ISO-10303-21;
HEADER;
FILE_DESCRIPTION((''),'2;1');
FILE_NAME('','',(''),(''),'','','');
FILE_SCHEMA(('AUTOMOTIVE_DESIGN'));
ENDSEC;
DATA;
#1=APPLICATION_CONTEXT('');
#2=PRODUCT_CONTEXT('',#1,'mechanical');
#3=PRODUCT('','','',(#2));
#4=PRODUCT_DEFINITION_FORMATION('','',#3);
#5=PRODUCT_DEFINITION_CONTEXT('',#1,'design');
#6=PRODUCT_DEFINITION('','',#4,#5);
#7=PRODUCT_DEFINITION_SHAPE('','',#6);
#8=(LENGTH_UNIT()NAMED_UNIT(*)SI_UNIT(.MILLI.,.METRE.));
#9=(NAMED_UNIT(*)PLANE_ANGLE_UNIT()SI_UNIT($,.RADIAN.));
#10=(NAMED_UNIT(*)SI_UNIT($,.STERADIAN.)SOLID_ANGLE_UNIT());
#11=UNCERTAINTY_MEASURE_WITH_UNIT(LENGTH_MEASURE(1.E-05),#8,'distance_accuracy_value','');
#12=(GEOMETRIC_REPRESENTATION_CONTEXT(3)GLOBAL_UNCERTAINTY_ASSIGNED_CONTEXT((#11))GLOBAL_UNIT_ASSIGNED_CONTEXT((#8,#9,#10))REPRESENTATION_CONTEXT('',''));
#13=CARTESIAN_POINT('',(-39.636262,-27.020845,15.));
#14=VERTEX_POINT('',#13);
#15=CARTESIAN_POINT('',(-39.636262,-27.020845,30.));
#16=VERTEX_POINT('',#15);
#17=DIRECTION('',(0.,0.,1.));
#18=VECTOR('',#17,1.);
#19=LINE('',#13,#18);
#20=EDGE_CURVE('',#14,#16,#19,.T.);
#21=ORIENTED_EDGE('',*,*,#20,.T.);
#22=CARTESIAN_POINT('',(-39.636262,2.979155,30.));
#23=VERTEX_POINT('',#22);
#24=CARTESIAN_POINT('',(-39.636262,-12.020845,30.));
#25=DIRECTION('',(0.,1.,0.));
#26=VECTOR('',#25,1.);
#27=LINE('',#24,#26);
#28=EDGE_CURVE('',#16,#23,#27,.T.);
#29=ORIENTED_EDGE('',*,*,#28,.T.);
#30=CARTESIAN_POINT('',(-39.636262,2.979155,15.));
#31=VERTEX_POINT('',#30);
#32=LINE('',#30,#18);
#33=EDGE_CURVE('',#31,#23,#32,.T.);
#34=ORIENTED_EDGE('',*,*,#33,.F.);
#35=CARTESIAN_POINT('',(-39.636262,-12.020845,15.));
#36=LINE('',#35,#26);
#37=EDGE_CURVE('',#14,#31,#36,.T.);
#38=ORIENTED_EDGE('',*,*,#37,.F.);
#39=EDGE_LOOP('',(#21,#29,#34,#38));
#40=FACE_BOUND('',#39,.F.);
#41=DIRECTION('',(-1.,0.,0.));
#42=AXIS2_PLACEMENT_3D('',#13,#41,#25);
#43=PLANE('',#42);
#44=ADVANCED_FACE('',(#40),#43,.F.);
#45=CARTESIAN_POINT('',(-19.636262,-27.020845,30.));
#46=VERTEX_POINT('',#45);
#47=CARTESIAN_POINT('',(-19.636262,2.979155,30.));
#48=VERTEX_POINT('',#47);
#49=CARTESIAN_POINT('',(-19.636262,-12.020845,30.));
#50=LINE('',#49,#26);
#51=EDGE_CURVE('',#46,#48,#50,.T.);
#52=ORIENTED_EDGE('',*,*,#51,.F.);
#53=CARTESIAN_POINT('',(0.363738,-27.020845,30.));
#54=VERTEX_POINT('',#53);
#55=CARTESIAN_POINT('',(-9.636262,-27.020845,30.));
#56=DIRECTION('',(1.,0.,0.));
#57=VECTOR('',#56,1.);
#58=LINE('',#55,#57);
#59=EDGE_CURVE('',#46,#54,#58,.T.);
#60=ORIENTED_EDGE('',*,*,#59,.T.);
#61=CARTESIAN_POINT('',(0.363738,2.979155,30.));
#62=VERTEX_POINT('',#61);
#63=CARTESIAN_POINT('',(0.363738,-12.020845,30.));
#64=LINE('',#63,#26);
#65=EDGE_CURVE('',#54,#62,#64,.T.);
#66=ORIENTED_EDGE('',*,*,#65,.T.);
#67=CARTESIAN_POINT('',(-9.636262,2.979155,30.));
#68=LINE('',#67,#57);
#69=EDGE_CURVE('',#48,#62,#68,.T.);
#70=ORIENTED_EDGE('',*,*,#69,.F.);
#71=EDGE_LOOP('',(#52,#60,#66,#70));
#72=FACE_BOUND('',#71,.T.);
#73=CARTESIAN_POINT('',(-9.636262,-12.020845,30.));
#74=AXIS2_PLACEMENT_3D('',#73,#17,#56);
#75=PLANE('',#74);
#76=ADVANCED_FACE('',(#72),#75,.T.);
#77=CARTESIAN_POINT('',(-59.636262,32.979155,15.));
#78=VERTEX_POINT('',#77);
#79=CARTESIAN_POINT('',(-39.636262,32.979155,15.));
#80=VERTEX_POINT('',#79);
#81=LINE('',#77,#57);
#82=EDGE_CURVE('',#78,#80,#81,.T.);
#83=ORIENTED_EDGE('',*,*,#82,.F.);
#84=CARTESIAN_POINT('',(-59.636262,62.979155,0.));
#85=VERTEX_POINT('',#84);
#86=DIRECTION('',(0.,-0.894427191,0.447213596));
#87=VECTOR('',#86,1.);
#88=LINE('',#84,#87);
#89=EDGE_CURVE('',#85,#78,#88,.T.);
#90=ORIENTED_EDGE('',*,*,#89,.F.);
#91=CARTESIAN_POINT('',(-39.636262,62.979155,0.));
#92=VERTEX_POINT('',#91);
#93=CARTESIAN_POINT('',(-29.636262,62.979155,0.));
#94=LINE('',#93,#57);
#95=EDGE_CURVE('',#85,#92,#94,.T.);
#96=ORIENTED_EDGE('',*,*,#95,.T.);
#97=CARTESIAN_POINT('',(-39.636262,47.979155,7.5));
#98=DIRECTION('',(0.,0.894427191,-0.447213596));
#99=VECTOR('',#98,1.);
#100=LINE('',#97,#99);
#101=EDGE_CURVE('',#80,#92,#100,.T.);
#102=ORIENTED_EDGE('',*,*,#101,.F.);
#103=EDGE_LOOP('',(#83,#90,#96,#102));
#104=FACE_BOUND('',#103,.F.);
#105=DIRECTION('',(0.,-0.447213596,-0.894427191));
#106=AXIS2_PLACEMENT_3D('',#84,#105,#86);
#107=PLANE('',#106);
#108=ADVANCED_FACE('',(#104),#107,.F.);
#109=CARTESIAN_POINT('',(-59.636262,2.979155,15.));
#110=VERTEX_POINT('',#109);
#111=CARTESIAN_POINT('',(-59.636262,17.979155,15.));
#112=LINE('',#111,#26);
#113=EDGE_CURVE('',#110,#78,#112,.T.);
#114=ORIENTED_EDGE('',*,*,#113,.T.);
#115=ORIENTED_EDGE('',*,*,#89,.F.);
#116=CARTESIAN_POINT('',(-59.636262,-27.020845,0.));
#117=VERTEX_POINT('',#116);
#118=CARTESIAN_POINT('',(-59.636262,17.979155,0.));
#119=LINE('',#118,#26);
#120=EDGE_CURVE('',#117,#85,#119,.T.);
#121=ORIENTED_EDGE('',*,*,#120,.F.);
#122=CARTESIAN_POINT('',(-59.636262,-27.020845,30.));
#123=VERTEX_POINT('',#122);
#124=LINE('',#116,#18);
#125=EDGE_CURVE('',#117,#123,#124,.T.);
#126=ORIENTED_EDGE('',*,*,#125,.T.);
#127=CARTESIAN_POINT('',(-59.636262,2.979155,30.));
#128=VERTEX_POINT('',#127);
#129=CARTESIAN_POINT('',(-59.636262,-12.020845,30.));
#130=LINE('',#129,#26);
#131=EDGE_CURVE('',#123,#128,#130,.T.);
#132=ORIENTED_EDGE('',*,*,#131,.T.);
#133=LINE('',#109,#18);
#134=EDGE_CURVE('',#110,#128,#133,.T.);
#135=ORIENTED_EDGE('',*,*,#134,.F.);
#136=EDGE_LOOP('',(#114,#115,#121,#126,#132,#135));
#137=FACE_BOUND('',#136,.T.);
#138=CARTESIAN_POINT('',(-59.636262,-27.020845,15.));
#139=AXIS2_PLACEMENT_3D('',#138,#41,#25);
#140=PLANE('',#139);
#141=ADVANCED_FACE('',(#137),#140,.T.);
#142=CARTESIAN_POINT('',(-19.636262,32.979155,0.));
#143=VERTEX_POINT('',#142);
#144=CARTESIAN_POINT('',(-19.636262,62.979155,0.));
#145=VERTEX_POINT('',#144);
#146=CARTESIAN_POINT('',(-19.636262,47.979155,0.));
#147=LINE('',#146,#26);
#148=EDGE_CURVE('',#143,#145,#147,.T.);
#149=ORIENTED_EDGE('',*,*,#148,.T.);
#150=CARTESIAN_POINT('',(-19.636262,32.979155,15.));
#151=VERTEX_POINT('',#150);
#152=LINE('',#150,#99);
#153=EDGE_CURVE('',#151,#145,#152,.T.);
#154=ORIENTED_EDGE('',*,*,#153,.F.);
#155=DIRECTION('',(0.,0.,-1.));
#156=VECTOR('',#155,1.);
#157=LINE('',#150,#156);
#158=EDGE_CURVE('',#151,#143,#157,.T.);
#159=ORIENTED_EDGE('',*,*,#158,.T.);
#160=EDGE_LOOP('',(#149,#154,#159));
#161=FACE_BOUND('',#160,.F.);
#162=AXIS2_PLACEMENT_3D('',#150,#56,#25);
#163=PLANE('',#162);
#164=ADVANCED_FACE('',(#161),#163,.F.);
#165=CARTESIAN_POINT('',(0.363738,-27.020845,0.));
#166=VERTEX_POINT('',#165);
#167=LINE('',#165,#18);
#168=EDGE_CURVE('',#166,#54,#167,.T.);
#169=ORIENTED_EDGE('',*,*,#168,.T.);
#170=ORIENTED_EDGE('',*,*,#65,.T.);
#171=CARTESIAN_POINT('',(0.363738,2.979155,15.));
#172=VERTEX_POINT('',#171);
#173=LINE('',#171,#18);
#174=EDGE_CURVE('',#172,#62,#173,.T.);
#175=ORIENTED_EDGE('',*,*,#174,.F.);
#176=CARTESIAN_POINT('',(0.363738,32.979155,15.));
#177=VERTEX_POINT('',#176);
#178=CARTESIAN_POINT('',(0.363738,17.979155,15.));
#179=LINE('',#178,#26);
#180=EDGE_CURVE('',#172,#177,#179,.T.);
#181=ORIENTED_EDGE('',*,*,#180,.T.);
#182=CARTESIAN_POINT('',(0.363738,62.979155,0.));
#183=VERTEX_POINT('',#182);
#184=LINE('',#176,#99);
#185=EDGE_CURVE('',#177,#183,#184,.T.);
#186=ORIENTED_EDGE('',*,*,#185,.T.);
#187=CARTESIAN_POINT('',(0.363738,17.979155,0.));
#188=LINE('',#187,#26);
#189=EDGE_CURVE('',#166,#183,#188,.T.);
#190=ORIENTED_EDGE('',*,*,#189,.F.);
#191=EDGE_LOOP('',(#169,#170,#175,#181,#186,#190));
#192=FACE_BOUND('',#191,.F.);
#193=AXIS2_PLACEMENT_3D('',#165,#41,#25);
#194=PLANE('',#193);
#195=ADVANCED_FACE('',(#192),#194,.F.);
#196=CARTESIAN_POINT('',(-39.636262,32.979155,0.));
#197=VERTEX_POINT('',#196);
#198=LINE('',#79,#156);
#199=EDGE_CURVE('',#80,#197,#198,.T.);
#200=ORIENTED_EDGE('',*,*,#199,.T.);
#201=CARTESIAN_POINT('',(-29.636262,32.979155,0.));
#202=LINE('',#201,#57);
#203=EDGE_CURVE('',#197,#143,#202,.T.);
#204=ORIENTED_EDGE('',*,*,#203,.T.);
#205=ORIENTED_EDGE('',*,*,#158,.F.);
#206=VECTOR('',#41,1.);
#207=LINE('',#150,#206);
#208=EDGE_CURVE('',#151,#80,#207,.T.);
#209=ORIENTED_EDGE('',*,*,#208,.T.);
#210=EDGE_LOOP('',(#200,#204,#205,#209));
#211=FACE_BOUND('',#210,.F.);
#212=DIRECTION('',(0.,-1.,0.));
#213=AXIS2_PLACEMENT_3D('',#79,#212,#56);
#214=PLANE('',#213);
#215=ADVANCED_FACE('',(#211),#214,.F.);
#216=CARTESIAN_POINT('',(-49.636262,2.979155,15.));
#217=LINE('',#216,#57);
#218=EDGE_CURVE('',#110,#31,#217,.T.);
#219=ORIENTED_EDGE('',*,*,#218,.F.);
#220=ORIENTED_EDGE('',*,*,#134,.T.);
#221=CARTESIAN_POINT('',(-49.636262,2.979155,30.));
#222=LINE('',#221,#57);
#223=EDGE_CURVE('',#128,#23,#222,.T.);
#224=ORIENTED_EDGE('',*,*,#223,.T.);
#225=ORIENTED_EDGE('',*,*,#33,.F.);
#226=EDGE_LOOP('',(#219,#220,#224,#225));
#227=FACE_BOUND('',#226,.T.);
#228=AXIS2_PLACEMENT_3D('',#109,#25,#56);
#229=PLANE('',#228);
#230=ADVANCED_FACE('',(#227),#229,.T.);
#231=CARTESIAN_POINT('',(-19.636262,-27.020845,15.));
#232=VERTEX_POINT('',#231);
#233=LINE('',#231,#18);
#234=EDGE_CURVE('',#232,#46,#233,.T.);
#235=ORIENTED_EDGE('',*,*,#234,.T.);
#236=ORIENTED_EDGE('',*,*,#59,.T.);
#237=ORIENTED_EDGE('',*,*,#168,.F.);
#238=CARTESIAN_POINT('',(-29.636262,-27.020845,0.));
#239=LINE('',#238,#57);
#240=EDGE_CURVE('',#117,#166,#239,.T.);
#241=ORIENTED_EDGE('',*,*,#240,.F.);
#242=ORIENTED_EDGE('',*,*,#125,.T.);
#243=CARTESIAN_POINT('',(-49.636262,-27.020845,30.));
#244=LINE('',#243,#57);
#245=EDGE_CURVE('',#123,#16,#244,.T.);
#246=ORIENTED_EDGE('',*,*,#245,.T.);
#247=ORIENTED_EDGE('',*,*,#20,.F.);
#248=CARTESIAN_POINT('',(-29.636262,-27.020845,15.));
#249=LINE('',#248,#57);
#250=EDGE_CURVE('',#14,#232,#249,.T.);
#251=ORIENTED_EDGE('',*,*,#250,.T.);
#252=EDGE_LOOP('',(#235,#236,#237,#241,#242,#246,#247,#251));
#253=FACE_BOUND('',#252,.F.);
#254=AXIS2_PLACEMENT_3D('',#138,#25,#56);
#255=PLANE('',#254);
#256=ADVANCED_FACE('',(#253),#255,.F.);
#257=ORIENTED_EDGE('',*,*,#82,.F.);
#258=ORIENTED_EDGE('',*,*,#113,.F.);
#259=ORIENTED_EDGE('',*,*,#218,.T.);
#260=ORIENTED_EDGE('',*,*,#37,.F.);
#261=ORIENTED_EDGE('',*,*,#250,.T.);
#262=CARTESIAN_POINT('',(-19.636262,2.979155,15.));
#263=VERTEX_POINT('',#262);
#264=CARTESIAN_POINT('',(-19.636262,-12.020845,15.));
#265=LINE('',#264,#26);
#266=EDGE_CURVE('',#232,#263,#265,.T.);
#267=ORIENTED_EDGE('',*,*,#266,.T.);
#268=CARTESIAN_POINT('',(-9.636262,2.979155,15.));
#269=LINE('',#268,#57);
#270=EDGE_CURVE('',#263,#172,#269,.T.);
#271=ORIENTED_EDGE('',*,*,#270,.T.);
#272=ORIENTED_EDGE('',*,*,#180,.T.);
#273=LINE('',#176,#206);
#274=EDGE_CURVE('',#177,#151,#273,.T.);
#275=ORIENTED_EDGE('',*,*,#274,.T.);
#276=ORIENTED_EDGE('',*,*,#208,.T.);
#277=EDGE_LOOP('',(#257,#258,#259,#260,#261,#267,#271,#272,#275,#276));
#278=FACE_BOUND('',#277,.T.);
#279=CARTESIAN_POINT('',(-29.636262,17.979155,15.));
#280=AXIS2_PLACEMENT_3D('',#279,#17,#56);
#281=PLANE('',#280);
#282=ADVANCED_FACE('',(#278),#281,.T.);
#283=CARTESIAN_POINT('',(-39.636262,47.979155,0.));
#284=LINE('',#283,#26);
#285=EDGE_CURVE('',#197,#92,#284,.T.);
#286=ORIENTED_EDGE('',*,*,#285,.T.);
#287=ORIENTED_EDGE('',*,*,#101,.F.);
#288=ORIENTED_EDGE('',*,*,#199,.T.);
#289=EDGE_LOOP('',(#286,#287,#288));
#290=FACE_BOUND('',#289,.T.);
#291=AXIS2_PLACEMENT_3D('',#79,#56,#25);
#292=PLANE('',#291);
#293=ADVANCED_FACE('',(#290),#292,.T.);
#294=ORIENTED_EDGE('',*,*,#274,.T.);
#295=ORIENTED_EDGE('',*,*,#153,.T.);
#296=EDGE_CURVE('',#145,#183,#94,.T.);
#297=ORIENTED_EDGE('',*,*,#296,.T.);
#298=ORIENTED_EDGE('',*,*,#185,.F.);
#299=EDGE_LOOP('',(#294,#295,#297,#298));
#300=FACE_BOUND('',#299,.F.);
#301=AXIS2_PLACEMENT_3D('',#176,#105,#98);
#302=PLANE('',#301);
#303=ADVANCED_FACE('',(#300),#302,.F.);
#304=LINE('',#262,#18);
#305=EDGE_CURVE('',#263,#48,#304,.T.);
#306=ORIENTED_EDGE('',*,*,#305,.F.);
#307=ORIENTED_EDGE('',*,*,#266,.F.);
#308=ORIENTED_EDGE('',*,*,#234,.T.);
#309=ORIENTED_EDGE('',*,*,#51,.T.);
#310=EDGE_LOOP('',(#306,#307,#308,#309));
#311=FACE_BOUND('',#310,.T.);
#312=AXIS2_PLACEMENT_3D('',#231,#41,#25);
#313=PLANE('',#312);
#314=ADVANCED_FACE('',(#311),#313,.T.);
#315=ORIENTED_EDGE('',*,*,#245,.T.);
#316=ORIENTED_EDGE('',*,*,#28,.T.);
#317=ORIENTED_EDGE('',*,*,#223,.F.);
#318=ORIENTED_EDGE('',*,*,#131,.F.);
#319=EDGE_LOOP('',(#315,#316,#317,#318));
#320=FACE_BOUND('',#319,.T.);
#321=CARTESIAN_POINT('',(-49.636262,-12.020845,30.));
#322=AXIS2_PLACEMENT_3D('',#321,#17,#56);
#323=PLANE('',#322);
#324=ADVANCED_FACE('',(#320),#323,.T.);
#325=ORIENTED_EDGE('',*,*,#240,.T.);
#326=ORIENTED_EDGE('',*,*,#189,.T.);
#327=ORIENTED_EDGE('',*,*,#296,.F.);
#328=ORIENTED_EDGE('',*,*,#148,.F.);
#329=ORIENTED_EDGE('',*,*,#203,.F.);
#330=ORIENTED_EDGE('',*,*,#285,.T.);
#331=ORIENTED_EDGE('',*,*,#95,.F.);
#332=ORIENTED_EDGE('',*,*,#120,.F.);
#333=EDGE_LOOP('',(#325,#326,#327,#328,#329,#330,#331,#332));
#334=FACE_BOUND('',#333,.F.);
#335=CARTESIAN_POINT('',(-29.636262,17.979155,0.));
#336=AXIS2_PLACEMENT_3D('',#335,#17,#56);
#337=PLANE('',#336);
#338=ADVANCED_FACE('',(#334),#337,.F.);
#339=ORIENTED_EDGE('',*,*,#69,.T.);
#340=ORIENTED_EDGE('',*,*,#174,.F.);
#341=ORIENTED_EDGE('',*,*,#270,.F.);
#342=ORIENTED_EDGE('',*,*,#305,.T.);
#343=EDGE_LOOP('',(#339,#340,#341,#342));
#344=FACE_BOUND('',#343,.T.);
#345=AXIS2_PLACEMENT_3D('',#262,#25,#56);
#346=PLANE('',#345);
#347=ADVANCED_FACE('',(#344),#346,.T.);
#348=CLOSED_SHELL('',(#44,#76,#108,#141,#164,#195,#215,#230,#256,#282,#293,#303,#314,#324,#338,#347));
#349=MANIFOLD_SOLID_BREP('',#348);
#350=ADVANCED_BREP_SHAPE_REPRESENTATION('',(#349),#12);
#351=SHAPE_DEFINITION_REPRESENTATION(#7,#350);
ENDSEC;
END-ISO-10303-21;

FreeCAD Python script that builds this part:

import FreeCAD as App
import Part
import Sketcher

V = App.Vector


def add_polygon(sketch, points):
    """Adds a closed chain of lines whose ends are joined by coincident constraints."""
    first, n = sketch.GeometryCount, len(points)
    for a, b in zip(points, points[1:] + points[:1]):
        sketch.addGeometry(Part.LineSegment(App.Vector(*a, 0), App.Vector(*b, 0)), False)
    for i in range(n):
        sketch.addConstraint(Sketcher.Constraint("Coincident", first + i, 2, first + (i + 1) % n, 1))

doc = App.newDocument("Part")
body = doc.addObject("PartDesign::Body", "Body")

# Sketch on XY plane
sketch1 = body.newObject("Sketcher::SketchObject", "Sketch")
sketch1.AttachmentSupport = (doc.getObject("XY_Plane"), [""])
sketch1.MapMode = "FlatFace"
add_polygon(sketch1, [(-60, 63), (-60, -27), (0, -27), (0, 63)])  # lines 0-3
sketch1.addConstraint([
    Sketcher.Constraint("Vertical", 0),
    Sketcher.Constraint("Horizontal", 1),
    Sketcher.Constraint("Vertical", 2),
    Sketcher.Constraint("Horizontal", 3),
    Sketcher.Constraint("DistanceX", 1, 1, 1, 2, 60.0),
    Sketcher.Constraint("DistanceY", 0, 2, 0, 1, 90.0),
    Sketcher.Constraint("DistanceX", 0, 2, -1, 1, 59.636262),
    Sketcher.Constraint("DistanceY", 0, 2, -1, 1, 27.020845),
])
pad1 = body.newObject("PartDesign::Pad", "Pad")
pad1.Profile = sketch1
pad1.Length = 15

# Sketch on XY plane
sketch2 = body.newObject("Sketcher::SketchObject", "Sketch001")
sketch2.AttachmentSupport = (doc.getObject("XY_Plane"), [""])
sketch2.MapMode = "FlatFace"
sketch2.AttachmentOffset = App.Placement(V(0, 0, 15), App.Rotation())
add_polygon(sketch2, [(-60, 3), (-60, -27), (-40, -27), (-40, 3)])  # lines 0-3
add_polygon(sketch2, [(-20, 3), (-20, -27), (0, -27), (0, 3)])  # lines 4-7
sketch2.addConstraint([
    Sketcher.Constraint("Vertical", 0),
    Sketcher.Constraint("Horizontal", 1),
    Sketcher.Constraint("Vertical", 2),
    Sketcher.Constraint("Horizontal", 3),
    Sketcher.Constraint("Vertical", 4),
    Sketcher.Constraint("Horizontal", 5),
    Sketcher.Constraint("Vertical", 6),
    Sketcher.Constraint("Horizontal", 7),
    Sketcher.Constraint("Horizontal", 1, 2, 4, 2),
    Sketcher.Constraint("Horizontal", 3, 2, 6, 2),
    Sketcher.Constraint("Equal", 3, 5),
    Sketcher.Constraint("DistanceX", 1, 1, 1, 2, 20.0),
    Sketcher.Constraint("DistanceY", 0, 2, 0, 1, 30.0),
    Sketcher.Constraint("DistanceX", 1, 2, 4, 2, 20.0),
    Sketcher.Constraint("DistanceX", 4, 2, -1, 1, 19.636262),
    Sketcher.Constraint("DistanceY", 0, 2, -1, 1, 27.020845),
])
pad2 = body.newObject("PartDesign::Pad", "Pad001")
pad2.Profile = sketch2
pad2.Length = 15

# Sketch on XY plane
sketch3 = body.newObject("Sketcher::SketchObject", "Sketch002")
sketch3.AttachmentSupport = (doc.getObject("XY_Plane"), [""])
sketch3.MapMode = "FlatFace"
sketch3.AttachmentOffset = App.Placement(V(0, 0, 15), App.Rotation())
add_polygon(sketch3, [(-40, 63), (-40, 33), (-20, 33), (-20, 63)])  # lines 0-3
sketch3.addConstraint([
    Sketcher.Constraint("Vertical", 0),
    Sketcher.Constraint("Horizontal", 1),
    Sketcher.Constraint("Vertical", 2),
    Sketcher.Constraint("Horizontal", 3),
    Sketcher.Constraint("DistanceX", 1, 1, 1, 2, 20.0),
    Sketcher.Constraint("DistanceY", 0, 2, 0, 1, 30.0),
    Sketcher.Constraint("DistanceX", 1, 2, -1, 1, 19.636262),
    Sketcher.Constraint("DistanceY", -1, 1, 0, 2, 32.979155),
])
pocket1 = body.newObject("PartDesign::Pocket", "Pocket")
pocket1.Profile = sketch3
pocket1.Length = 15

# Sketch on YZ plane
sketch4 = body.newObject("Sketcher::SketchObject", "Sketch003")
sketch4.AttachmentSupport = (doc.getObject("YZ_Plane"), [""])
sketch4.MapMode = "FlatFace"
sketch4.AttachmentOffset = App.Placement(V(0, 0, -59.636262), App.Rotation())
add_polygon(sketch4, [(63, 15), (63, 0), (33, 15)])  # lines 0-2
sketch4.addConstraint([
    Sketcher.Constraint("Vertical", 0),
    Sketcher.Constraint("Horizontal", 2),
    Sketcher.Constraint("PointOnObject", 0, 2, -1),
    Sketcher.Constraint("DistanceX", 2, 1, 2, 2, 30.0),
    Sketcher.Constraint("DistanceY", 0, 2, 0, 1, 15.0),
    Sketcher.Constraint("DistanceX", -1, 1, 0, 2, 62.979155),
])
pocket2 = body.newObject("PartDesign::Pocket", "Pocket001")
pocket2.Profile = sketch4
pocket2.Length = 25
pocket2.Reversed = True

# Sketch on YZ plane
sketch5 = body.newObject("Sketcher::SketchObject", "Sketch004")
sketch5.AttachmentSupport = (doc.getObject("YZ_Plane"), [""])
sketch5.MapMode = "FlatFace"
sketch5.AttachmentOffset = App.Placement(V(0, 0, 0.363738), App.Rotation())
add_polygon(sketch5, [(33, 15), (63, 0), (63, 15)])  # lines 0-2
sketch5.addConstraint([
    Sketcher.Constraint("Vertical", 1),
    Sketcher.Constraint("Horizontal", 2),
    Sketcher.Constraint("PointOnObject", 0, 2, -1),
    Sketcher.Constraint("DistanceX", 2, 2, 2, 1, 30.0),
    Sketcher.Constraint("DistanceY", 1, 1, 1, 2, 15.0),
    Sketcher.Constraint("DistanceX", -1, 1, 0, 2, 62.979155),
])
pocket3 = body.newObject("PartDesign::Pocket", "Pocket002")
pocket3.Profile = sketch5
pocket3.Length = 25

doc.recompute()
